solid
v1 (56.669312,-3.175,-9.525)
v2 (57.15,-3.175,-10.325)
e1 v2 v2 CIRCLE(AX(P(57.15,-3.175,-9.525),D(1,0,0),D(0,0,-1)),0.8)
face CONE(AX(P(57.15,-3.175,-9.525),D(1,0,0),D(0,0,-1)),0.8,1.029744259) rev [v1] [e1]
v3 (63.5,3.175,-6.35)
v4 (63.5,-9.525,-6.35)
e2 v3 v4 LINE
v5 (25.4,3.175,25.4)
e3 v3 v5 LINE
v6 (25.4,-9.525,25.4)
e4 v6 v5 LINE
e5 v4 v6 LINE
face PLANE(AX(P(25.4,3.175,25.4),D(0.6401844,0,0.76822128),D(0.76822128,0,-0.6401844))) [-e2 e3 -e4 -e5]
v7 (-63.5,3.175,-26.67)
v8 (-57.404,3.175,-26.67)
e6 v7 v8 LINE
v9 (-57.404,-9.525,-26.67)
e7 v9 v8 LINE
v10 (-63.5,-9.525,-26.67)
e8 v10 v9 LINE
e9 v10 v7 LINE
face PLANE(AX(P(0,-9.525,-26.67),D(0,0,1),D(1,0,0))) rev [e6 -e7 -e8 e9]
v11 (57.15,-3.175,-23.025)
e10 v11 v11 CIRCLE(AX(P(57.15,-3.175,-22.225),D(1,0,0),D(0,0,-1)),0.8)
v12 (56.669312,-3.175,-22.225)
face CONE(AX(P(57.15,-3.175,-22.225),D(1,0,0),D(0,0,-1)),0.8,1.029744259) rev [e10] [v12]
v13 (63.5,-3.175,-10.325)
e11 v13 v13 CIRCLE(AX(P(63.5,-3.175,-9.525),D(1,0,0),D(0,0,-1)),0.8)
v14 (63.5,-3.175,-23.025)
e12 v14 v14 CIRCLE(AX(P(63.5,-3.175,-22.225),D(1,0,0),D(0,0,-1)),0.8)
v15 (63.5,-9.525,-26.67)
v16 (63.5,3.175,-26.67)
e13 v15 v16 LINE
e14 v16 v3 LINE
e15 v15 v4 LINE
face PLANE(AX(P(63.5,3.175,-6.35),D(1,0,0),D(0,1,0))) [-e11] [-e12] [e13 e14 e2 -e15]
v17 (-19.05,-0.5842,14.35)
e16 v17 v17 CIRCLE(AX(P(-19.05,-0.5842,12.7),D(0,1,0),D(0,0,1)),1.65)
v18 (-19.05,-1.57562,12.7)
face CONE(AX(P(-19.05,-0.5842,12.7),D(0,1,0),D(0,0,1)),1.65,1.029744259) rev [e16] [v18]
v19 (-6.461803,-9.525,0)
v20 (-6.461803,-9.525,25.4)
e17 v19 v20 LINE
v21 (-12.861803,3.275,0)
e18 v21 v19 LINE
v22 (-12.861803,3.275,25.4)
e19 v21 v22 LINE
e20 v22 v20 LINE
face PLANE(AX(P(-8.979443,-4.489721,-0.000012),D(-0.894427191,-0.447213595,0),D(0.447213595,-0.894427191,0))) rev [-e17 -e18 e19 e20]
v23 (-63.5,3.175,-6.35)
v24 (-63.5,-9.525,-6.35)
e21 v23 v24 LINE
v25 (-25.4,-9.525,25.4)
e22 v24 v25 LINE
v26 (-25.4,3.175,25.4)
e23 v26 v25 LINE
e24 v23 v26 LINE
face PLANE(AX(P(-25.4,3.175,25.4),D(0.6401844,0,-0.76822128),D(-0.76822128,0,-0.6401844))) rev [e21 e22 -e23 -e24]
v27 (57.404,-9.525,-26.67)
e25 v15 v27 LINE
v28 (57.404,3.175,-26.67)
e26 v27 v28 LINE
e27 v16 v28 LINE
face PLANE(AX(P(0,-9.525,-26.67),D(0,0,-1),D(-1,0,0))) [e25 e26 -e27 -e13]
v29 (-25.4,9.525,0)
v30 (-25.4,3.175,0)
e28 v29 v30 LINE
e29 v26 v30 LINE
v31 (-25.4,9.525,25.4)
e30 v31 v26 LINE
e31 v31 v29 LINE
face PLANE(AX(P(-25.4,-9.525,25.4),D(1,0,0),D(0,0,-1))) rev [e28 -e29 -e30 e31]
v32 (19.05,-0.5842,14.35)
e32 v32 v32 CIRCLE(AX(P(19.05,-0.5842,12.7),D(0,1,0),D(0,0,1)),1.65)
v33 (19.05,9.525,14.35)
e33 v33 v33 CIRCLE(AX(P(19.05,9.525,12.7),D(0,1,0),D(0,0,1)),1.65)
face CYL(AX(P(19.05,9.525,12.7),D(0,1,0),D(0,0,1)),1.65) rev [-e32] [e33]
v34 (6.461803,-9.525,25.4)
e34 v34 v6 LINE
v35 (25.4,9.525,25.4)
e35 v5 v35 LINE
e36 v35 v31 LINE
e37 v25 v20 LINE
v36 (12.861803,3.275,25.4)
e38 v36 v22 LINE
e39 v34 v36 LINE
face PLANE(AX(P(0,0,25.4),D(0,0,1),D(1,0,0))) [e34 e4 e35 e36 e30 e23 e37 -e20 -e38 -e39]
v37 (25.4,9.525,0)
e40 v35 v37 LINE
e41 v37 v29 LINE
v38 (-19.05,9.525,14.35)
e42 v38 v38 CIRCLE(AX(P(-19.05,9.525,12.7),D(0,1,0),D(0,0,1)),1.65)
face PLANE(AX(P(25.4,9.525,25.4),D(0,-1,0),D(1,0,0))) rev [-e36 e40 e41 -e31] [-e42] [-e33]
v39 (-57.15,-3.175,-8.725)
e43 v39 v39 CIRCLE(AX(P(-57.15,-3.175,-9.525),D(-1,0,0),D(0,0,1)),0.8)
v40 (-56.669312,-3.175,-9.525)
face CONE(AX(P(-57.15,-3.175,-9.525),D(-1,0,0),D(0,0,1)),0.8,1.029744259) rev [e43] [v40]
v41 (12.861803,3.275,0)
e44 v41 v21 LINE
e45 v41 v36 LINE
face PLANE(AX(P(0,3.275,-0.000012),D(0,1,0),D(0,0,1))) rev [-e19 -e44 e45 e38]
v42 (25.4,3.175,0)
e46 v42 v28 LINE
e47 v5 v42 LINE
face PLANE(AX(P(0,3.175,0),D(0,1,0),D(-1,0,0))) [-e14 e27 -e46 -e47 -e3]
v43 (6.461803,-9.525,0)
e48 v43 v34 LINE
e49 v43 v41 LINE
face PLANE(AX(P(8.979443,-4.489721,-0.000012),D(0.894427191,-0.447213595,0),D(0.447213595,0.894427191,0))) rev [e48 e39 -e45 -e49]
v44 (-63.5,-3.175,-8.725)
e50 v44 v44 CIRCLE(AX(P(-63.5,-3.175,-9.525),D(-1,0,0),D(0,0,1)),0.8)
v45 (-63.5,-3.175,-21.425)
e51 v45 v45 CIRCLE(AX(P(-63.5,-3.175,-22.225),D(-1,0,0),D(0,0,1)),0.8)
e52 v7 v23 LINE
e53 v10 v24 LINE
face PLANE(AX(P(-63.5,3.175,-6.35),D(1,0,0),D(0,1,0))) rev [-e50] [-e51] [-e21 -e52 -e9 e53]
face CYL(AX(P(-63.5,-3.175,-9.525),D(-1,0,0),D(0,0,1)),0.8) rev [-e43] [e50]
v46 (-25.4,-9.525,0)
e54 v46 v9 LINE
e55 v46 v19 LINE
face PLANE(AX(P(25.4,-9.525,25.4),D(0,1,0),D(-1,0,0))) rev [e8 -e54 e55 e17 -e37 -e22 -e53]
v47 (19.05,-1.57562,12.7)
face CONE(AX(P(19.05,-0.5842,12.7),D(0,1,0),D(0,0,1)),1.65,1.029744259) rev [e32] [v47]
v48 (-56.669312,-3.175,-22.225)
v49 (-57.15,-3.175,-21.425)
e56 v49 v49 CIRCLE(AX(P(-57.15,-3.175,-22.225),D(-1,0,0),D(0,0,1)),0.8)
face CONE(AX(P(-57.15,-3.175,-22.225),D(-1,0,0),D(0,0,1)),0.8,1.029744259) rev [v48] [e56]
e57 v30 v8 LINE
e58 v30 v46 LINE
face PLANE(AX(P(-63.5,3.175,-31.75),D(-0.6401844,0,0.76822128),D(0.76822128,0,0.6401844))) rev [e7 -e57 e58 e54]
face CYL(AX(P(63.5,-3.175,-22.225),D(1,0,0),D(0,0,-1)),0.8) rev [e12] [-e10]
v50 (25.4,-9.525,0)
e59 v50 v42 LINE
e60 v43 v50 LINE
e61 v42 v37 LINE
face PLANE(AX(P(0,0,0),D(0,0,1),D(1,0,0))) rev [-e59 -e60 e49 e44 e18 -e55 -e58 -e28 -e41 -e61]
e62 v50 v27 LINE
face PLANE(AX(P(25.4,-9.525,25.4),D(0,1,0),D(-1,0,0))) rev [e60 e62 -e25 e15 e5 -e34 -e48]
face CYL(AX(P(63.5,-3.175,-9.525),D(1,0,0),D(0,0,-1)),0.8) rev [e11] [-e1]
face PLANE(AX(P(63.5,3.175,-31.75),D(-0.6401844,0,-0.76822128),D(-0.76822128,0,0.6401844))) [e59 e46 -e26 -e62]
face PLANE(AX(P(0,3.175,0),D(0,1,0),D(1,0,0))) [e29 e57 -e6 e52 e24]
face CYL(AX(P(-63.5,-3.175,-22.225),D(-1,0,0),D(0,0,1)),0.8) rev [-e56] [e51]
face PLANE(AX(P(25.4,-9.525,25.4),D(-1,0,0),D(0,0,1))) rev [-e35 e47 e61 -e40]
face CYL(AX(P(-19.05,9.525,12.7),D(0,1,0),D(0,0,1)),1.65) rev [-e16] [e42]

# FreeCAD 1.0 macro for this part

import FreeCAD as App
import Part
import Sketcher
Q = App.Units.Quantity

doc = App.newDocument("Part")
body = doc.addObject("PartDesign::Body", "Body")

sketch1 = doc.addObject("Sketcher::SketchObject", "Sketch")
body.addObject(sketch1)
sketch1.AttachmentSupport = (doc.XY_Plane, [""])
sketch1.MapMode = "FlatFace"
sketch1.addGeometry([
    Part.LineSegment(App.Vector(-25, 10, 0), App.Vector(-25, -10, 0)),
    Part.LineSegment(App.Vector(-25, -10, 0), App.Vector(25, -10, 0)),
    Part.LineSegment(App.Vector(25, -10, 0), App.Vector(25, 10, 0)),
    Part.LineSegment(App.Vector(25, 10, 0), App.Vector(-25, 10, 0)),
], False)
sketch1.addConstraint([
    Sketcher.Constraint("Coincident", 0, 2, 1, 1),
    Sketcher.Constraint("Coincident", 1, 2, 2, 1),
    Sketcher.Constraint("Coincident", 2, 2, 3, 1),
    Sketcher.Constraint("Coincident", 3, 2, 0, 1),
    Sketcher.Constraint("Vertical", 0),
    Sketcher.Constraint("Horizontal", 1),
    Sketcher.Constraint("Vertical", 2),
    Sketcher.Constraint("Horizontal", 3),
    Sketcher.Constraint("Symmetric", 0, 2, 2, 2, -1, 1),
    Sketcher.Constraint("DistanceX", 1, 1, 1, 2, Q("2 in")),
    Sketcher.Constraint("DistanceY", 0, 2, 0, 1, Q("0.75 in")),
])
pad1 = doc.addObject("PartDesign::Pad", "Pad")
body.addObject(pad1)
pad1.Profile = sketch1
pad1.Length = Q("1 in")

sketch2 = doc.addObject("Sketcher::SketchObject", "Sketch001")
body.addObject(sketch2)
sketch2.AttachmentSupport = (doc.XY_Plane, [""])
sketch2.MapMode = "FlatFace"
sketch2.addGeometry([
    Part.LineSegment(App.Vector(6, -10, 0), App.Vector(-6, -10, 0)),
    Part.LineSegment(App.Vector(-6, -10, 0), App.Vector(-13, 3, 0)),
    Part.LineSegment(App.Vector(-13, 3, 0), App.Vector(13, 3, 0)),
    Part.LineSegment(App.Vector(13, 3, 0), App.Vector(6, -10, 0)),
], False)
sketch2.addConstraint([
    Sketcher.Constraint("Coincident", 0, 2, 1, 1),
    Sketcher.Constraint("Coincident", 1, 2, 2, 1),
    Sketcher.Constraint("Coincident", 2, 2, 3, 1),
    Sketcher.Constraint("Coincident", 3, 2, 0, 1),
    Sketcher.Constraint("Horizontal", 0),
    Sketcher.Constraint("Horizontal", 2),
    Sketcher.Constraint("Equal", 1, 3),
    Sketcher.Constraint("DistanceY", 0, 2, -1, 1, Q("0.375 in")),
    Sketcher.Constraint("DistanceY", -1, 1, 1, 2, 3.275),
    Sketcher.Constraint("DistanceX", 1, 2, 0, 2, 6.4),
    Sketcher.Constraint("DistanceX", 0, 2, 0, 1, 12.923607),
    Sketcher.Constraint("DistanceX", 0, 2, -1, 1, 6.461803),
])
pocket1 = doc.addObject("PartDesign::Pocket", "Pocket")
body.addObject(pocket1)
pocket1.Profile = sketch2
pocket1.Type = "ThroughAll"
pocket1.Midplane = True

sketch3 = doc.addObject("Sketcher::SketchObject", "Sketch002")
body.addObject(sketch3)
sketch3.AttachmentSupport = (doc.XZ_Plane, [""])
sketch3.MapMode = "FlatFace"
sketch3.AttachmentOffset = App.Placement(App.Vector(0, 0, -0.375 * 25.4), App.Rotation())
sketch3.addGeometry([
    Part.Circle(App.Vector(-19.1, 12.7, 0), App.Vector(0, 0, 1), 1.6),
    Part.Circle(App.Vector(19.1, 12.7, 0), App.Vector(0, 0, 1), 1.6),
], False)
sketch3.addConstraint([
    Sketcher.Constraint("Equal", 0, 1),
    Sketcher.Constraint("Symmetric", 0, 3, 1, 3, -2),
    Sketcher.Constraint("DistanceY", -1, 1, 0, 3, Q("0.5 in")),
    Sketcher.Constraint("DistanceX", 0, 3, 1, 3, Q("1.5 in")),
    Sketcher.Constraint("Diameter", 0, 3.3),
])
doc.recompute()
hole = doc.addObject("PartDesign::Hole", "Hole")
body.addObject(hole)
hole.Profile = sketch3
hole.ThreadType = "None"
hole.Diameter = 3.3
hole.DepthType = "Dimension"
hole.Depth = Q("0.398 in")
hole.DrillPoint = "Angled"
hole.DrillPointAngle = 118
hole.Reversed = True

sketch4 = doc.addObject("Sketcher::SketchObject", "Sketch003")
body.addObject(sketch4)
sketch4.AttachmentSupport = (doc.XZ_Plane, [""])
sketch4.MapMode = "FlatFace"
sketch4.AttachmentOffset = App.Placement(App.Vector(0, 0, 0.375 * 25.4), App.Rotation())
sketch4.addGeometry([
    Part.LineSegment(App.Vector(64, -6, 0), App.Vector(25, 25, 0)),
    Part.LineSegment(App.Vector(25, 25, 0), App.Vector(25, 0, 0)),
    Part.LineSegment(App.Vector(25, 0, 0), App.Vector(64, -32, 0)),
    Part.LineSegment(App.Vector(64, -32, 0), App.Vector(64, -6, 0)),
], False)
sketch4.addConstraint([
    Sketcher.Constraint("Coincident", 0, 2, 1, 1),
    Sketcher.Constraint("Coincident", 1, 2, 2, 1),
    Sketcher.Constraint("Coincident", 2, 2, 3, 1),
    Sketcher.Constraint("Coincident", 3, 2, 0, 1),
    Sketcher.Constraint("Vertical", 1),
    Sketcher.Constraint("Vertical", 3),
    Sketcher.Constraint("PointOnObject", 1, 2, -1),
    Sketcher.Constraint("Parallel", 0, 2),
    Sketcher.Constraint("DistanceY", 1, 2, 1, 1, Q("1 in")),
    Sketcher.Constraint("DistanceX", -1, 1, 0, 2, Q("1 in")),
    Sketcher.Constraint("DistanceX", -1, 1, 2, 2, Q("2.5 in")),
    Sketcher.Constraint("DistanceY", 2, 2, -1, 1, Q("1.25 in")),
])
pad2 = doc.addObject("PartDesign::Pad", "Pad001")
body.addObject(pad2)
pad2.Profile = sketch4
pad2.Length = Q("0.5 in")
pad2.Reversed = True

sketch5 = doc.addObject("Sketcher::SketchObject", "Sketch004")
body.addObject(sketch5)
sketch5.AttachmentSupport = (doc.XZ_Plane, [""])
sketch5.MapMode = "FlatFace"
sketch5.AttachmentOffset = App.Placement(App.Vector(0, 0, 0.125 * 25.4), App.Rotation())
sketch5.addGeometry([
    Part.LineSegment(App.Vector(56.7, -22.2, 0), App.Vector(63.5, -22.2, 0)),
    Part.LineSegment(App.Vector(63.5, -22.2, 0), App.Vector(63.5, -23, 0)),
    Part.LineSegment(App.Vector(63.5, -23, 0), App.Vector(57.1, -23, 0)),
    Part.LineSegment(App.Vector(57.1, -23, 0), App.Vector(56.7, -22.2, 0)),
], False)
sketch5.addGeometry(Part.LineSegment(App.Vector(63.5, -22.2, 0), App.Vector(56.7, -22.2, 0)), True)
sketch5.addConstraint([
    Sketcher.Constraint("Coincident", 0, 2, 1, 1),
    Sketcher.Constraint("Coincident", 1, 2, 2, 1),
    Sketcher.Constraint("Coincident", 2, 2, 3, 1),
    Sketcher.Constraint("Coincident", 3, 2, 0, 1),
    Sketcher.Constraint("Horizontal", 0),
    Sketcher.Constraint("Vertical", 1),
    Sketcher.Constraint("Horizontal", 2),
    Sketcher.Constraint("Horizontal", 4),
    Sketcher.Constraint("Coincident", 4, 1, 0, 2),
    Sketcher.Constraint("Equal", 0, 4),
    Sketcher.Constraint("Angle", 3, Q("121 deg")),
    Sketcher.Constraint("DistanceX", 2, 2, 2, 1, Q("0.25 in")),
    Sketcher.Constraint("DistanceX", -1, 1, 0, 2, Q("2.5 in")),
    Sketcher.Constraint("DistanceY", 0, 2, -1, 1, Q("0.875 in")),
    Sketcher.Constraint("DistanceY", 1, 2, 1, 1, 0.8),
])
groove = doc.addObject("PartDesign::Groove", "Groove")
body.addObject(groove)
groove.Profile = sketch5
groove.ReferenceAxis = (sketch5, ["Axis0"])
groove.Angle = 360
doc.recompute()

linearpattern = doc.addObject("PartDesign::LinearPattern", "LinearPattern")
body.addObject(linearpattern)
linearpattern.Originals = [groove]
linearpattern.Direction = (doc.Z_Axis, [""])
linearpattern.Mode = "offset"
linearpattern.Offset = Q("0.5 in")
linearpattern.Occurrences = 2
body.Tip = linearpattern

sketch6 = doc.addObject("Sketcher::SketchObject", "Sketch005")
body.addObject(sketch6)
sketch6.AttachmentSupport = (doc.XZ_Plane, [""])
sketch6.MapMode = "FlatFace"
sketch6.AttachmentOffset = App.Placement(App.Vector(0, 0, -0.125 * 25.4), App.Rotation())
sketch6.addGeometry([
    Part.LineSegment(App.Vector(57, -27, 0), App.Vector(64, -27, 0)),
    Part.LineSegment(App.Vector(64, -27, 0), App.Vector(64, -32, 0)),
    Part.LineSegment(App.Vector(64, -32, 0), App.Vector(57, -27, 0)),
], False)
sketch6.addConstraint([
    Sketcher.Constraint("Coincident", 0, 2, 1, 1),
    Sketcher.Constraint("Coincident", 1, 2, 2, 1),
    Sketcher.Constraint("Coincident", 2, 2, 0, 1),
    Sketcher.Constraint("Horizontal", 0),
    Sketcher.Constraint("Vertical", 1),
    Sketcher.Constraint("DistanceY", 1, 2, 1, 1, Q("0.2 in")),
    Sketcher.Constraint("DistanceX", 0, 1, 0, 2, Q("0.24 in")),
    Sketcher.Constraint("DistanceX", -1, 1, 0, 2, Q("2.5 in")),
    Sketcher.Constraint("DistanceY", 0, 2, -1, 1, Q("1.05 in")),
])
pocket2 = doc.addObject("PartDesign::Pocket", "Pocket001")
body.addObject(pocket2)
pocket2.Profile = sketch6
pocket2.Length = Q("0.5 in")
pocket2.Reversed = True
doc.recompute()

mirrored = doc.addObject("PartDesign::Mirrored", "Mirrored")
body.addObject(mirrored)
mirrored.Originals = [pad2, groove, pocket2]
mirrored.MirrorPlane = (doc.YZ_Plane, [""])
body.Tip = mirrored

sketch7 = doc.addObject("Sketcher::SketchObject", "Sketch006")
body.addObject(sketch7)
sketch7.AttachmentSupport = (doc.XZ_Plane, [""])
sketch7.MapMode = "FlatFace"
sketch7.AttachmentOffset = App.Placement(App.Vector(0, 0, 0.125 * 25.4), App.Rotation())
sketch7.addGeometry([
    Part.LineSegment(App.Vector(-63.5, -9.5, 0), App.Vector(-56.7, -9.5, 0)),
    Part.LineSegment(App.Vector(-56.7, -9.5, 0), App.Vector(-57.1, -10.3, 0)),
    Part.LineSegment(App.Vector(-57.1, -10.3, 0), App.Vector(-63.5, -10.3, 0)),
    Part.LineSegment(App.Vector(-63.5, -10.3, 0), App.Vector(-63.5, -9.5, 0)),
], False)
sketch7.addGeometry(Part.LineSegment(App.Vector(-56.7, -9.5, 0), App.Vector(-63.5, -9.5, 0)), True)
sketch7.addConstraint([
    Sketcher.Constraint("Coincident", 0, 2, 1, 1),
    Sketcher.Constraint("Coincident", 1, 2, 2, 1),
    Sketcher.Constraint("Coincident", 2, 2, 3, 1),
    Sketcher.Constraint("Coincident", 3, 2, 0, 1),
    Sketcher.Constraint("Horizontal", 0),
    Sketcher.Constraint("Horizontal", 2),
    Sketcher.Constraint("Vertical", 3),
    Sketcher.Constraint("Horizontal", 4),
    Sketcher.Constraint("Coincident", 4, 1, 0, 2),
    Sketcher.Constraint("Vertical", 2, 2, 4, 2),
    Sketcher.Constraint("Angle", 1, Q("-121 deg")),
    Sketcher.Constraint("DistanceX", 2, 2, 2, 1, Q("0.25 in")),
    Sketcher.Constraint("DistanceX", 2, 2, -1, 1, Q("2.5 in")),
    Sketcher.Constraint("DistanceY", 0, 2, -1, 1, Q("0.375 in")),
    Sketcher.Constraint("DistanceY", 3, 1, 3, 2, 0.8),
])
groove2 = doc.addObject("PartDesign::Groove", "Groove001")
body.addObject(groove2)
groove2.Profile = sketch7
groove2.ReferenceAxis = (sketch7, ["Axis0"])
groove2.Angle = 360

doc.recompute()
